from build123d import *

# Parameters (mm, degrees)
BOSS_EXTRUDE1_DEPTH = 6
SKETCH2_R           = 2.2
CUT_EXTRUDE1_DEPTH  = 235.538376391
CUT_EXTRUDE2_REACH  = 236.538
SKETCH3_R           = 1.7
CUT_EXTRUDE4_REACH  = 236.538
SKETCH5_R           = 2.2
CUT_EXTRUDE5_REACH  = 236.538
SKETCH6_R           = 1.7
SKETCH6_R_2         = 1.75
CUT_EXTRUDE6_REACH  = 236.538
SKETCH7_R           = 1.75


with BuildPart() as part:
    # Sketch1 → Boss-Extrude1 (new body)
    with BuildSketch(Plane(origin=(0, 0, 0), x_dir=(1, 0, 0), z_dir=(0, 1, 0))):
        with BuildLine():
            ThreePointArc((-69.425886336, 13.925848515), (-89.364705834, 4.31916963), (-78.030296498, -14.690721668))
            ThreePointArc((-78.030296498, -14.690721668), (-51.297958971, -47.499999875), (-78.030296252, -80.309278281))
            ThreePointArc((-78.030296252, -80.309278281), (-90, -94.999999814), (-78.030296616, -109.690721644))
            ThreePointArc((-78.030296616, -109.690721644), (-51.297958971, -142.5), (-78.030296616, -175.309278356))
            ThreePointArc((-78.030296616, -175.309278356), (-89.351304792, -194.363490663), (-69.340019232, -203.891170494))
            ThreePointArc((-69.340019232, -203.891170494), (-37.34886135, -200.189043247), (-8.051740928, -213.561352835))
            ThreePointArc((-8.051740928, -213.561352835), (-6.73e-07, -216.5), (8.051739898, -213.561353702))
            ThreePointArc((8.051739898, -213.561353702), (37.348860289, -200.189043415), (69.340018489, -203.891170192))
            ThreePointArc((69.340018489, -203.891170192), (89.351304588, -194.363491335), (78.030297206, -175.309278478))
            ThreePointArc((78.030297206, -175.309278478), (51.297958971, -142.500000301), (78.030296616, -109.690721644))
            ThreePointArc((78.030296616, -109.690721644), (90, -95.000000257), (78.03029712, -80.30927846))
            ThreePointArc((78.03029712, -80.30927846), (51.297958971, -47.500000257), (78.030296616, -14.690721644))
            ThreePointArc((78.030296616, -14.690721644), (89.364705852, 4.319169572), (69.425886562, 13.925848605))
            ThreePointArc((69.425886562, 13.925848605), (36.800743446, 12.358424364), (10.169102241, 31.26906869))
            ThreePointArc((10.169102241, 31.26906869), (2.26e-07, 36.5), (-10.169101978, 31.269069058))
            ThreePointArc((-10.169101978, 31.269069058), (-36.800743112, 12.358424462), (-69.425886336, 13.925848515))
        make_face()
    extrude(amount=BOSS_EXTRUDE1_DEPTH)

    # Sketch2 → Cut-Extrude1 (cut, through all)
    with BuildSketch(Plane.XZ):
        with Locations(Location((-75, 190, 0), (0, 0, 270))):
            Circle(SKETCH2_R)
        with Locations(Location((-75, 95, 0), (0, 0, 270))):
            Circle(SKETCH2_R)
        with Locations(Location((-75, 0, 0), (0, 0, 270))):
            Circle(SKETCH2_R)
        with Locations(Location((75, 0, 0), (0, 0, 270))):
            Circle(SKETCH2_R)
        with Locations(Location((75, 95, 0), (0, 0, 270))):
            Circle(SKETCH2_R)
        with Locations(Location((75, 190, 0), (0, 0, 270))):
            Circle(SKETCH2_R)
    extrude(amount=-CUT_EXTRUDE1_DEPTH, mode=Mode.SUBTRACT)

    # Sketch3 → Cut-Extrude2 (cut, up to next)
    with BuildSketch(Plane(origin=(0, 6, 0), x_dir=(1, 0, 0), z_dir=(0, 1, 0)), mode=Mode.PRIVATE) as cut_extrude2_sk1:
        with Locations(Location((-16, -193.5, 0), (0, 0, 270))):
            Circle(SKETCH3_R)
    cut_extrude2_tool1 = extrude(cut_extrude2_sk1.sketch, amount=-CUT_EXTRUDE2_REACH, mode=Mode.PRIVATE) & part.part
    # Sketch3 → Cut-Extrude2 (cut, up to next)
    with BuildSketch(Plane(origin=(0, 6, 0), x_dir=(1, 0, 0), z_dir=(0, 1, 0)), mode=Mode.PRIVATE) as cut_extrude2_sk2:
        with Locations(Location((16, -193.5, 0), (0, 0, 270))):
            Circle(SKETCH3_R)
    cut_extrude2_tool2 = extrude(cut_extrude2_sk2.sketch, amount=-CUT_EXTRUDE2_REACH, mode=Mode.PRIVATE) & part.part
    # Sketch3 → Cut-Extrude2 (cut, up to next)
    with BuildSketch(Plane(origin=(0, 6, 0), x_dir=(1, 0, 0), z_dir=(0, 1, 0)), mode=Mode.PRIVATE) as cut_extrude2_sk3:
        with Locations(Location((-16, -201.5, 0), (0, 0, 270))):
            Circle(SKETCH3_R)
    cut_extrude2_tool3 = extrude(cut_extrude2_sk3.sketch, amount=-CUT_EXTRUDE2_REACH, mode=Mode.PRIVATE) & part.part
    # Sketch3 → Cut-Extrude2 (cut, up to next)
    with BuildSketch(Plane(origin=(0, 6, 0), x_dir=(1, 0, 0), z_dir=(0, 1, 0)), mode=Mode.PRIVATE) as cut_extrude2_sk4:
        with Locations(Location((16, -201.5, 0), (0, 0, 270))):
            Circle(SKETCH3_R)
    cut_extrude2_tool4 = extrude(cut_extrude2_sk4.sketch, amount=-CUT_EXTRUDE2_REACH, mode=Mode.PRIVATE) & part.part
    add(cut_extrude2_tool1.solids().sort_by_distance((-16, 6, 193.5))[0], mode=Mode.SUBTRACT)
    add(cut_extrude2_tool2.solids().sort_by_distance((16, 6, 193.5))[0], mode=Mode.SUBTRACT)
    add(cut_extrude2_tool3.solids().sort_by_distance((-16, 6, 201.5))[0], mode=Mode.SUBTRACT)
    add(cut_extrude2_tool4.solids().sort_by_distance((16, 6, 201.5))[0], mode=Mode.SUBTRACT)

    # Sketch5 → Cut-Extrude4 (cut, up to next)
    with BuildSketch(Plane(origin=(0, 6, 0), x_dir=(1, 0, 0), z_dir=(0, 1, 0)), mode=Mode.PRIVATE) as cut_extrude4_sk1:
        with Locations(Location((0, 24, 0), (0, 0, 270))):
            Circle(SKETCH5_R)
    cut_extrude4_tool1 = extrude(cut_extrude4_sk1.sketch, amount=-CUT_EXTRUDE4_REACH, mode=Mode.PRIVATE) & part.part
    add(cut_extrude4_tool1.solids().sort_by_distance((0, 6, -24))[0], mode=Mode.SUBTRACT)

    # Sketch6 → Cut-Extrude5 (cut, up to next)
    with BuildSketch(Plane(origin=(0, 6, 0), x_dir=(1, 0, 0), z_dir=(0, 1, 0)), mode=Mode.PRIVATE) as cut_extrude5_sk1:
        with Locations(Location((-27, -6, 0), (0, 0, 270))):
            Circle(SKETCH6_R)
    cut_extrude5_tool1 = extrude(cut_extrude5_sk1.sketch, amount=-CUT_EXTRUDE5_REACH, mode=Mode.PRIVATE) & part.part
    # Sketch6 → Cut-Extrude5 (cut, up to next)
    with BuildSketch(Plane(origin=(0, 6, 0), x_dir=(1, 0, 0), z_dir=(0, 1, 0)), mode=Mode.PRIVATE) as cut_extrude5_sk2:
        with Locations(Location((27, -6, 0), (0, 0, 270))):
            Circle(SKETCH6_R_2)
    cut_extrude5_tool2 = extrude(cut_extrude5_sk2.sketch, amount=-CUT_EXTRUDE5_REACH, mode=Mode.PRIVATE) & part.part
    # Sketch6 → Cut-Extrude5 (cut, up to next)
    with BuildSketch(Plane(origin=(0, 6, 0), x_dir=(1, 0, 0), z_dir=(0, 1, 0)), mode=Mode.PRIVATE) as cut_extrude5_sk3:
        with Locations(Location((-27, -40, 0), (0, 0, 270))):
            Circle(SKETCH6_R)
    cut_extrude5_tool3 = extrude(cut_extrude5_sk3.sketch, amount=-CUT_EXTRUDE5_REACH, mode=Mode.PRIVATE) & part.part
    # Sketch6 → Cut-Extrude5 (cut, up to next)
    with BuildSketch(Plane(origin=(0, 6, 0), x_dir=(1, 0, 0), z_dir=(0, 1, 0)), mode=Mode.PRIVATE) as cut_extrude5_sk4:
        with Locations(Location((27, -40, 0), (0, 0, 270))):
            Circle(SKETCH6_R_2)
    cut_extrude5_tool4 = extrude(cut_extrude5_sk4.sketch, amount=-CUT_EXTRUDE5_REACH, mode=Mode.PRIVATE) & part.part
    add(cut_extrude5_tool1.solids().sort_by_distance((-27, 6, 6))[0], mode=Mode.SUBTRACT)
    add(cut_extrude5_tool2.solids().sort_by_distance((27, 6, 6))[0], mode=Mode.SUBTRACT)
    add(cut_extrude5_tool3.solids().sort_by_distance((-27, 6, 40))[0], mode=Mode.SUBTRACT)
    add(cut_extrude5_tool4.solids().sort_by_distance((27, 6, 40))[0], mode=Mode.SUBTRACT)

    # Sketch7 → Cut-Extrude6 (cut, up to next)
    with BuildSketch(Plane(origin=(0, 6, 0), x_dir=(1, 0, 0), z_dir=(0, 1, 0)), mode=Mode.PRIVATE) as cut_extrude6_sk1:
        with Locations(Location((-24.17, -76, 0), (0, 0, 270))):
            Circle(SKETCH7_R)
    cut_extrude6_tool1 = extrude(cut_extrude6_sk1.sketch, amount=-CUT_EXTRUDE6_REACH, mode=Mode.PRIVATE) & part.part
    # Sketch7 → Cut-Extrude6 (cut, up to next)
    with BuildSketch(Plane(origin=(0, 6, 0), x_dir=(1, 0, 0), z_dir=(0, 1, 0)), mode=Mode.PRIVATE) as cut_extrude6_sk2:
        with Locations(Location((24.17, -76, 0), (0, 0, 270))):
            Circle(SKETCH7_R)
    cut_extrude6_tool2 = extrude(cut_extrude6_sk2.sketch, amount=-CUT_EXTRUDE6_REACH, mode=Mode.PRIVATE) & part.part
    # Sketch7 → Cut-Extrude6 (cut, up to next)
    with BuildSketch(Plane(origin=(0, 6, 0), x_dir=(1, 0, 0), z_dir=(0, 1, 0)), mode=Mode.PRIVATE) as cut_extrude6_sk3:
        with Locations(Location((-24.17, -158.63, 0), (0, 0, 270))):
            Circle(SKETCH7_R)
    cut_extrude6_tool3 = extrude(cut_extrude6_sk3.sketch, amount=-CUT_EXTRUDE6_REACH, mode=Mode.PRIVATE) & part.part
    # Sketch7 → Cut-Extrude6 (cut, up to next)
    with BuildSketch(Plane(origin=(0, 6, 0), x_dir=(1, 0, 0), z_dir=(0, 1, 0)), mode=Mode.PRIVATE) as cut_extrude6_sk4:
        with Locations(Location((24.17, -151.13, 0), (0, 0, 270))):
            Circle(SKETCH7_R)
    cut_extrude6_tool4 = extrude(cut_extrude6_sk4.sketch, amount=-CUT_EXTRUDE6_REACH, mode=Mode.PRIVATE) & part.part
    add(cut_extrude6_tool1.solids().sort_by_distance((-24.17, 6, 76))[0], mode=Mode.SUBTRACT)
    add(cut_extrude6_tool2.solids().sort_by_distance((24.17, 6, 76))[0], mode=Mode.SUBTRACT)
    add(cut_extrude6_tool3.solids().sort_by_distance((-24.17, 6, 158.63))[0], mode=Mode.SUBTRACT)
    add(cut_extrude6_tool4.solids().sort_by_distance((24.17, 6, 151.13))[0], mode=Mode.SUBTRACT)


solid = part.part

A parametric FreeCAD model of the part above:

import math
import FreeCAD as App
import Part
import Sketcher
Q = App.Units.Quantity

doc = App.newDocument("Part")
params = doc.addObject("Spreadsheet::Sheet", "Params")
for row, (alias, value) in enumerate([
    ("sketch1_radius", "15 mm"),
    ("sketch1_radius2", "60 mm"),
    ("sketch1_radius3", "50 mm"),
    ("sketch1_radius4", "33.5 mm"),
    ("sketch1_radius5", "12.5 mm"),
    ("pad1_length", "6 mm"),
    ("sketch2_diameter", "4.4 mm"),
    ("sketch3_diameter", "3.4 mm"),
    ("sketch4_diameter", "3.4 mm"),
    ("sketch5_diameter", "3.4 mm"),
    ("sketch6_diameter", "3.4 mm"),
    ("sketch7_diameter", "4.4 mm"),
    ("sketch8_diameter", "3.4 mm"),
    ("sketch9_diameter", "3.5 mm"),
    ("sketch10_diameter", "3.4 mm"),
    ("sketch11_diameter", "3.5 mm"),
    ("sketch12_diameter", "3.5 mm"),
    ("sketch13_diameter", "3.5 mm"),
    ("sketch14_diameter", "3.5 mm"),
    ("sketch15_diameter", "3.5 mm"),
], start=1):
    params.set(f"A{row}", alias)
    params.set(f"B{row}", "=" + value)
    params.setAlias(f"B{row}", alias)

body = doc.addObject("PartDesign::Body", "Body")

sketch1 = body.newObject("Sketcher::SketchObject", "Sketch")
sketch1.AttachmentSupport = (doc.getObject("XZ_Plane"), [""])
sketch1.MapMode = "FlatFace"
sketch1.addGeometry([
    Part.ArcOfCircle(Part.Circle(App.Vector(-75, 0, 0), App.Vector(0, 0, 1), 15), math.radians(102), math.radians(292)),
    Part.ArcOfCircle(Part.Circle(App.Vector(-85, 48, 0), App.Vector(0, 0, 1), 34), math.radians(-78), math.radians(78)),
    Part.ArcOfCircle(Part.Circle(App.Vector(-75, 95, 0), App.Vector(0, 0, 1), 15), math.radians(102), math.radians(258)),
    Part.ArcOfCircle(Part.Circle(App.Vector(-85, 142, 0), App.Vector(0, 0, 1), 34), math.radians(-78), math.radians(78)),
    Part.ArcOfCircle(Part.Circle(App.Vector(-75, 190, 0), App.Vector(0, 0, 1), 15), math.radians(68), math.radians(258)),
    Part.ArcOfCircle(Part.Circle(App.Vector(-47, 259, 0), App.Vector(0, 0, 1), 60), math.radians(-112), math.radians(-50)),
    Part.ArcOfCircle(Part.Circle(App.Vector(0, 204, 0), App.Vector(0, 0, 1), 13), math.radians(50), math.radians(130)),
    Part.ArcOfCircle(Part.Circle(App.Vector(47, 259, 0), App.Vector(0, 0, 1), 60), math.radians(-130), math.radians(-68)),
    Part.ArcOfCircle(Part.Circle(App.Vector(75, 190, 0), App.Vector(0, 0, 1), 15), math.radians(-78), math.radians(112)),
    Part.ArcOfCircle(Part.Circle(App.Vector(85, 142, 0), App.Vector(0, 0, 1), 34), math.radians(102), math.radians(258)),
    Part.ArcOfCircle(Part.Circle(App.Vector(75, 95, 0), App.Vector(0, 0, 1), 15), math.radians(-78), math.radians(78)),
    Part.ArcOfCircle(Part.Circle(App.Vector(85, 48, 0), App.Vector(0, 0, 1), 34), math.radians(102), math.radians(258)),
    Part.ArcOfCircle(Part.Circle(App.Vector(75, 0, 0), App.Vector(0, 0, 1), 15), math.radians(-112), math.radians(78)),
    Part.ArcOfCircle(Part.Circle(App.Vector(51, -60, 0), App.Vector(0, 0, 1), 50), math.radians(68), math.radians(144)),
    Part.ArcOfCircle(Part.Circle(App.Vector(0, -24, 0), App.Vector(0, 0, 1), 13), math.radians(-144), math.radians(-36)),
    Part.ArcOfCircle(Part.Circle(App.Vector(-51, -60, 0), App.Vector(0, 0, 1), 50), math.radians(36), math.radians(112)),
], False)
sketch1.addConstraint([
    Sketcher.Constraint("Tangent", 0, 1, 1, 1),
    Sketcher.Constraint("Tangent", 1, 2, 2, 2),
    Sketcher.Constraint("Tangent", 2, 1, 3, 1),
    Sketcher.Constraint("Tangent", 3, 2, 4, 2),
    Sketcher.Constraint("Tangent", 4, 1, 5, 1),
    Sketcher.Constraint("Tangent", 5, 2, 6, 2),
    Sketcher.Constraint("Tangent", 6, 1, 7, 1),
    Sketcher.Constraint("Tangent", 7, 2, 8, 2),
    Sketcher.Constraint("Tangent", 8, 1, 9, 1),
    Sketcher.Constraint("Tangent", 9, 2, 10, 2),
    Sketcher.Constraint("Tangent", 10, 1, 11, 1),
    Sketcher.Constraint("Tangent", 11, 2, 12, 2),
    Sketcher.Constraint("Tangent", 12, 1, 13, 1),
    Sketcher.Constraint("Tangent", 13, 2, 14, 2),
    Sketcher.Constraint("Tangent", 14, 1, 15, 1),
    Sketcher.Constraint("Tangent", 15, 2, 0, 2),
    Sketcher.Constraint("Equal", 0, 2),
    Sketcher.Constraint("Equal", 1, 3),
    Sketcher.Constraint("Equal", 2, 4),
    Sketcher.Constraint("Equal", 5, 7),
    Sketcher.Constraint("Equal", 4, 8),
    Sketcher.Constraint("Equal", 3, 9),
    Sketcher.Constraint("Equal", 8, 10),
    Sketcher.Constraint("Equal", 9, 11),
    Sketcher.Constraint("Equal", 10, 12),
    Sketcher.Constraint("Equal", 6, 14),
    Sketcher.Constraint("Equal", 13, 15),
    Sketcher.Constraint("Symmetric", 0, 3, 12, 3, -1, 1),
    Sketcher.Constraint("Symmetric", 5, 3, 7, 3, -2),
    Sketcher.Constraint("Symmetric", 3, 3, 9, 3, -2),
    Sketcher.Constraint("Symmetric", 1, 3, 11, 3, -2),
    Sketcher.Constraint("PointOnObject", 14, 3, -2),
    Sketcher.Constraint("Vertical", 0, 3, 2, 3),
    Sketcher.Constraint("Vertical", 1, 3, 3, 3),
    Sketcher.Constraint("Vertical", 2, 3, 4, 3),
    Sketcher.Constraint("Radius", 0, Q("15 mm")),
    Sketcher.Constraint("Radius", 5, Q("60 mm")),
    Sketcher.Constraint("Radius", 13, Q("50 mm")),
    Sketcher.Constraint("Radius", 1, Q("33.5 mm")),
    Sketcher.Constraint("Radius", 6, Q("12.5 mm")),
    Sketcher.Constraint("DistanceX", 0, 3, -1, 1, Q("75 mm")),
    Sketcher.Constraint("DistanceY", -1, 1, 2, 3, Q("95 mm")),
    Sketcher.Constraint("DistanceY", -1, 1, 6, 3, Q("204 mm")),
    Sketcher.Constraint("DistanceY", 14, 3, -1, 1, Q("24 mm")),
])
sketch1.setExpression("Constraints[35]", "Params.sketch1_radius")
sketch1.setExpression("Constraints[36]", "Params.sketch1_radius2")
sketch1.setExpression("Constraints[37]", "Params.sketch1_radius3")
sketch1.setExpression("Constraints[38]", "Params.sketch1_radius4")
sketch1.setExpression("Constraints[39]", "Params.sketch1_radius5")
pad1 = body.newObject("PartDesign::Pad", "Pad")
pad1.Profile = sketch1
pad1.setExpression("Length", "Params.pad1_length")
pad1.Reversed = True

sketch2 = body.newObject("Sketcher::SketchObject", "Sketch001")
sketch2.AttachmentSupport = (doc.getObject("XZ_Plane"), [""])
sketch2.MapMode = "FlatFace"
sketch2.addGeometry([
    Part.Circle(App.Vector(-75, 190, 0), App.Vector(0, 0, 1), 2.2),
    Part.Circle(App.Vector(-75, 95, 0), App.Vector(0, 0, 1), 2.2),
    Part.Circle(App.Vector(-75, 0, 0), App.Vector(0, 0, 1), 2.2),
    Part.Circle(App.Vector(75, 0, 0), App.Vector(0, 0, 1), 2.2),
    Part.Circle(App.Vector(75, 95, 0), App.Vector(0, 0, 1), 2.2),
    Part.Circle(App.Vector(75, 190, 0), App.Vector(0, 0, 1), 2.2),
], False)
sketch2.addConstraint([
    Sketcher.Constraint("Equal", 0, 1),
    Sketcher.Constraint("Equal", 1, 2),
    Sketcher.Constraint("Equal", 2, 3),
    Sketcher.Constraint("Equal", 3, 4),
    Sketcher.Constraint("Equal", 4, 5),
    Sketcher.Constraint("Symmetric", 2, 3, 3, 3, -1, 1),
    Sketcher.Constraint("Symmetric", 1, 3, 4, 3, -2),
    Sketcher.Constraint("Symmetric", 0, 3, 5, 3, -2),
    Sketcher.Constraint("PointOnObject", 2, 3, -1),
    Sketcher.Constraint("Vertical", 0, 3, 1, 3),
    Sketcher.Constraint("Vertical", 1, 3, 2, 3),
    Sketcher.Constraint("Diameter", 0, Q("4.4 mm")),
    Sketcher.Constraint("DistanceX", 0, 3, -1, 1, Q("75 mm")),
    Sketcher.Constraint("DistanceY", -1, 1, 0, 3, Q("190 mm")),
    Sketcher.Constraint("DistanceY", -1, 1, 1, 3, Q("95 mm")),
])
sketch2.setExpression("Constraints[11]", "Params.sketch2_diameter")
pocket1 = body.newObject("PartDesign::Pocket", "Pocket")
pocket1.Profile = sketch2
pocket1.Type = "ThroughAll"

sketch3 = body.newObject("Sketcher::SketchObject", "Sketch002")
sketch3.AttachmentSupport = (doc.getObject("XZ_Plane"), [""])
sketch3.MapMode = "FlatFace"
sketch3.AttachmentOffset = App.Placement(App.Vector(0, 0, -6), App.Rotation())
sketch3.addGeometry(Part.Circle(App.Vector(-16, 193.5, 0), App.Vector(0, 0, 1), 1.7), False)
sketch3.addConstraint([
    Sketcher.Constraint("Diameter", 0, Q("3.4 mm")),
    Sketcher.Constraint("DistanceX", 0, 3, -1, 1, Q("16 mm")),
    Sketcher.Constraint("DistanceY", -1, 1, 0, 3, Q("193.5 mm")),
])
sketch3.setExpression("Constraints[0]", "Params.sketch3_diameter")
pocket2 = body.newObject("PartDesign::Pocket", "Pocket001")
pocket2.Profile = sketch3
pocket2.Type = "UpToFirst"
pocket2.Reversed = True

sketch4 = body.newObject("Sketcher::SketchObject", "Sketch003")
sketch4.AttachmentSupport = (doc.getObject("XZ_Plane"), [""])
sketch4.MapMode = "FlatFace"
sketch4.AttachmentOffset = App.Placement(App.Vector(0, 0, -6), App.Rotation())
sketch4.addGeometry(Part.Circle(App.Vector(16, 193.5, 0), App.Vector(0, 0, 1), 1.7), False)
sketch4.addConstraint([
    Sketcher.Constraint("Diameter", 0, Q("3.4 mm")),
    Sketcher.Constraint("DistanceX", -1, 1, 0, 3, Q("16 mm")),
    Sketcher.Constraint("DistanceY", -1, 1, 0, 3, Q("193.5 mm")),
])
sketch4.setExpression("Constraints[0]", "Params.sketch4_diameter")
pocket3 = body.newObject("PartDesign::Pocket", "Pocket002")
pocket3.Profile = sketch4
pocket3.Type = "UpToFirst"
pocket3.Reversed = True

sketch5 = body.newObject("Sketcher::SketchObject", "Sketch004")
sketch5.AttachmentSupport = (doc.getObject("XZ_Plane"), [""])
sketch5.MapMode = "FlatFace"
sketch5.AttachmentOffset = App.Placement(App.Vector(0, 0, -6), App.Rotation())
sketch5.addGeometry(Part.Circle(App.Vector(-16, 201.5, 0), App.Vector(0, 0, 1), 1.7), False)
sketch5.addConstraint([
    Sketcher.Constraint("Diameter", 0, Q("3.4 mm")),
    Sketcher.Constraint("DistanceX", 0, 3, -1, 1, Q("16 mm")),
    Sketcher.Constraint("DistanceY", -1, 1, 0, 3, Q("201.5 mm")),
])
sketch5.setExpression("Constraints[0]", "Params.sketch5_diameter")
pocket4 = body.newObject("PartDesign::Pocket", "Pocket003")
pocket4.Profile = sketch5
pocket4.Type = "UpToFirst"
pocket4.Reversed = True

sketch6 = body.newObject("Sketcher::SketchObject", "Sketch005")
sketch6.AttachmentSupport = (doc.getObject("XZ_Plane"), [""])
sketch6.MapMode = "FlatFace"
sketch6.AttachmentOffset = App.Placement(App.Vector(0, 0, -6), App.Rotation())
sketch6.addGeometry(Part.Circle(App.Vector(16, 201.5, 0), App.Vector(0, 0, 1), 1.7), False)
sketch6.addConstraint([
    Sketcher.Constraint("Diameter", 0, Q("3.4 mm")),
    Sketcher.Constraint("DistanceX", -1, 1, 0, 3, Q("16 mm")),
    Sketcher.Constraint("DistanceY", -1, 1, 0, 3, Q("201.5 mm")),
])
sketch6.setExpression("Constraints[0]", "Params.sketch6_diameter")
pocket5 = body.newObject("PartDesign::Pocket", "Pocket004")
pocket5.Profile = sketch6
pocket5.Type = "UpToFirst"
pocket5.Reversed = True

sketch7 = body.newObject("Sketcher::SketchObject", "Sketch006")
sketch7.AttachmentSupport = (doc.getObject("XZ_Plane"), [""])
sketch7.MapMode = "FlatFace"
sketch7.AttachmentOffset = App.Placement(App.Vector(0, 0, -6), App.Rotation())
sketch7.addGeometry(Part.Circle(App.Vector(0, -24, 0), App.Vector(0, 0, 1), 2.2), False)
sketch7.addConstraint([
    Sketcher.Constraint("PointOnObject", 0, 3, -2),
    Sketcher.Constraint("Diameter", 0, Q("4.4 mm")),
    Sketcher.Constraint("DistanceY", 0, 3, -1, 1, Q("24 mm")),
])
sketch7.setExpression("Constraints[1]", "Params.sketch7_diameter")
pocket6 = body.newObject("PartDesign::Pocket", "Pocket005")
pocket6.Profile = sketch7
pocket6.Type = "UpToFirst"
pocket6.Reversed = True

sketch8 = body.newObject("Sketcher::SketchObject", "Sketch007")
sketch8.AttachmentSupport = (doc.getObject("XZ_Plane"), [""])
sketch8.MapMode = "FlatFace"
sketch8.AttachmentOffset = App.Placement(App.Vector(0, 0, -6), App.Rotation())
sketch8.addGeometry(Part.Circle(App.Vector(-27, 6, 0), App.Vector(0, 0, 1), 1.7), False)
sketch8.addConstraint([
    Sketcher.Constraint("Diameter", 0, Q("3.4 mm")),
    Sketcher.Constraint("DistanceX", 0, 3, -1, 1, Q("27 mm")),
    Sketcher.Constraint("DistanceY", -1, 1, 0, 3, Q("6 mm")),
])
sketch8.setExpression("Constraints[0]", "Params.sketch8_diameter")
pocket7 = body.newObject("PartDesign::Pocket", "Pocket006")
pocket7.Profile = sketch8
pocket7.Type = "UpToFirst"
pocket7.Reversed = True

sketch9 = body.newObject("Sketcher::SketchObject", "Sketch008")
sketch9.AttachmentSupport = (doc.getObject("XZ_Plane"), [""])
sketch9.MapMode = "FlatFace"
sketch9.AttachmentOffset = App.Placement(App.Vector(0, 0, -6), App.Rotation())
sketch9.addGeometry(Part.Circle(App.Vector(27, 6, 0), App.Vector(0, 0, 1), 1.8), False)
sketch9.addConstraint([
    Sketcher.Constraint("Diameter", 0, Q("3.5 mm")),
    Sketcher.Constraint("DistanceX", -1, 1, 0, 3, Q("27 mm")),
    Sketcher.Constraint("DistanceY", -1, 1, 0, 3, Q("6 mm")),
])
sketch9.setExpression("Constraints[0]", "Params.sketch9_diameter")
pocket8 = body.newObject("PartDesign::Pocket", "Pocket007")
pocket8.Profile = sketch9
pocket8.Type = "UpToFirst"
pocket8.Reversed = True

sketch10 = body.newObject("Sketcher::SketchObject", "Sketch009")
sketch10.AttachmentSupport = (doc.getObject("XZ_Plane"), [""])
sketch10.MapMode = "FlatFace"
sketch10.AttachmentOffset = App.Placement(App.Vector(0, 0, -6), App.Rotation())
sketch10.addGeometry(Part.Circle(App.Vector(-27, 40, 0), App.Vector(0, 0, 1), 1.7), False)
sketch10.addConstraint([
    Sketcher.Constraint("Diameter", 0, Q("3.4 mm")),
    Sketcher.Constraint("DistanceX", 0, 3, -1, 1, Q("27 mm")),
    Sketcher.Constraint("DistanceY", -1, 1, 0, 3, Q("40 mm")),
])
sketch10.setExpression("Constraints[0]", "Params.sketch10_diameter")
pocket9 = body.newObject("PartDesign::Pocket", "Pocket008")
pocket9.Profile = sketch10
pocket9.Type = "UpToFirst"
pocket9.Reversed = True

sketch11 = body.newObject("Sketcher::SketchObject", "Sketch010")
sketch11.AttachmentSupport = (doc.getObject("XZ_Plane"), [""])
sketch11.MapMode = "FlatFace"
sketch11.AttachmentOffset = App.Placement(App.Vector(0, 0, -6), App.Rotation())
sketch11.addGeometry(Part.Circle(App.Vector(27, 40, 0), App.Vector(0, 0, 1), 1.8), False)
sketch11.addConstraint([
    Sketcher.Constraint("Diameter", 0, Q("3.5 mm")),
    Sketcher.Constraint("DistanceX", -1, 1, 0, 3, Q("27 mm")),
    Sketcher.Constraint("DistanceY", -1, 1, 0, 3, Q("40 mm")),
])
sketch11.setExpression("Constraints[0]", "Params.sketch11_diameter")
pocket10 = body.newObject("PartDesign::Pocket", "Pocket009")
pocket10.Profile = sketch11
pocket10.Type = "UpToFirst"
pocket10.Reversed = True

sketch12 = body.newObject("Sketcher::SketchObject", "Sketch011")
sketch12.AttachmentSupport = (doc.getObject("XZ_Plane"), [""])
sketch12.MapMode = "FlatFace"
sketch12.AttachmentOffset = App.Placement(App.Vector(0, 0, -6), App.Rotation())
sketch12.addGeometry(Part.Circle(App.Vector(-24.2, 76, 0), App.Vector(0, 0, 1), 1.8), False)
sketch12.addConstraint([
    Sketcher.Constraint("Diameter", 0, Q("3.5 mm")),
    Sketcher.Constraint("DistanceY", -1, 1, 0, 3, Q("76 mm")),
    Sketcher.Constraint("DistanceX", 0, 3, -1, 1, Q("24.17 mm")),
])
sketch12.setExpression("Constraints[0]", "Params.sketch12_diameter")
pocket11 = body.newObject("PartDesign::Pocket", "Pocket010")
pocket11.Profile = sketch12
pocket11.Type = "UpToFirst"
pocket11.Reversed = True

sketch13 = body.newObject("Sketcher::SketchObject", "Sketch012")
sketch13.AttachmentSupport = (doc.getObject("XZ_Plane"), [""])
sketch13.MapMode = "FlatFace"
sketch13.AttachmentOffset = App.Placement(App.Vector(0, 0, -6), App.Rotation())
sketch13.addGeometry(Part.Circle(App.Vector(24.2, 76, 0), App.Vector(0, 0, 1), 1.8), False)
sketch13.addConstraint([
    Sketcher.Constraint("Diameter", 0, Q("3.5 mm")),
    Sketcher.Constraint("DistanceY", -1, 1, 0, 3, Q("76 mm")),
    Sketcher.Constraint("DistanceX", -1, 1, 0, 3, Q("24.17 mm")),
])
sketch13.setExpression("Constraints[0]", "Params.sketch13_diameter")
pocket12 = body.newObject("PartDesign::Pocket", "Pocket011")
pocket12.Profile = sketch13
pocket12.Type = "UpToFirst"
pocket12.Reversed = True

sketch14 = body.newObject("Sketcher::SketchObject", "Sketch013")
sketch14.AttachmentSupport = (doc.getObject("XZ_Plane"), [""])
sketch14.MapMode = "FlatFace"
sketch14.AttachmentOffset = App.Placement(App.Vector(0, 0, -6), App.Rotation())
sketch14.addGeometry(Part.Circle(App.Vector(-24.2, 158.6, 0), App.Vector(0, 0, 1), 1.8), False)
sketch14.addConstraint([
    Sketcher.Constraint("Diameter", 0, Q("3.5 mm")),
    Sketcher.Constraint("DistanceX", 0, 3, -1, 1, Q("24.17 mm")),
    Sketcher.Constraint("DistanceY", -1, 1, 0, 3, Q("158.63 mm")),
])
sketch14.setExpression("Constraints[0]", "Params.sketch14_diameter")
pocket13 = body.newObject("PartDesign::Pocket", "Pocket012")
pocket13.Profile = sketch14
pocket13.Type = "UpToFirst"
pocket13.Reversed = True

sketch15 = body.newObject("Sketcher::SketchObject", "Sketch014")
sketch15.AttachmentSupport = (doc.getObject("XZ_Plane"), [""])
sketch15.MapMode = "FlatFace"
sketch15.AttachmentOffset = App.Placement(App.Vector(0, 0, -6), App.Rotation())
sketch15.addGeometry(Part.Circle(App.Vector(24.2, 151.1, 0), App.Vector(0, 0, 1), 1.8), False)
sketch15.addConstraint([
    Sketcher.Constraint("Diameter", 0, Q("3.5 mm")),
    Sketcher.Constraint("DistanceX", -1, 1, 0, 3, Q("24.17 mm")),
    Sketcher.Constraint("DistanceY", -1, 1, 0, 3, Q("151.13 mm")),
])
sketch15.setExpression("Constraints[0]", "Params.sketch15_diameter")
pocket14 = body.newObject("PartDesign::Pocket", "Pocket013")
pocket14.Profile = sketch15
pocket14.Type = "UpToFirst"
pocket14.Reversed = True

doc.recompute()
